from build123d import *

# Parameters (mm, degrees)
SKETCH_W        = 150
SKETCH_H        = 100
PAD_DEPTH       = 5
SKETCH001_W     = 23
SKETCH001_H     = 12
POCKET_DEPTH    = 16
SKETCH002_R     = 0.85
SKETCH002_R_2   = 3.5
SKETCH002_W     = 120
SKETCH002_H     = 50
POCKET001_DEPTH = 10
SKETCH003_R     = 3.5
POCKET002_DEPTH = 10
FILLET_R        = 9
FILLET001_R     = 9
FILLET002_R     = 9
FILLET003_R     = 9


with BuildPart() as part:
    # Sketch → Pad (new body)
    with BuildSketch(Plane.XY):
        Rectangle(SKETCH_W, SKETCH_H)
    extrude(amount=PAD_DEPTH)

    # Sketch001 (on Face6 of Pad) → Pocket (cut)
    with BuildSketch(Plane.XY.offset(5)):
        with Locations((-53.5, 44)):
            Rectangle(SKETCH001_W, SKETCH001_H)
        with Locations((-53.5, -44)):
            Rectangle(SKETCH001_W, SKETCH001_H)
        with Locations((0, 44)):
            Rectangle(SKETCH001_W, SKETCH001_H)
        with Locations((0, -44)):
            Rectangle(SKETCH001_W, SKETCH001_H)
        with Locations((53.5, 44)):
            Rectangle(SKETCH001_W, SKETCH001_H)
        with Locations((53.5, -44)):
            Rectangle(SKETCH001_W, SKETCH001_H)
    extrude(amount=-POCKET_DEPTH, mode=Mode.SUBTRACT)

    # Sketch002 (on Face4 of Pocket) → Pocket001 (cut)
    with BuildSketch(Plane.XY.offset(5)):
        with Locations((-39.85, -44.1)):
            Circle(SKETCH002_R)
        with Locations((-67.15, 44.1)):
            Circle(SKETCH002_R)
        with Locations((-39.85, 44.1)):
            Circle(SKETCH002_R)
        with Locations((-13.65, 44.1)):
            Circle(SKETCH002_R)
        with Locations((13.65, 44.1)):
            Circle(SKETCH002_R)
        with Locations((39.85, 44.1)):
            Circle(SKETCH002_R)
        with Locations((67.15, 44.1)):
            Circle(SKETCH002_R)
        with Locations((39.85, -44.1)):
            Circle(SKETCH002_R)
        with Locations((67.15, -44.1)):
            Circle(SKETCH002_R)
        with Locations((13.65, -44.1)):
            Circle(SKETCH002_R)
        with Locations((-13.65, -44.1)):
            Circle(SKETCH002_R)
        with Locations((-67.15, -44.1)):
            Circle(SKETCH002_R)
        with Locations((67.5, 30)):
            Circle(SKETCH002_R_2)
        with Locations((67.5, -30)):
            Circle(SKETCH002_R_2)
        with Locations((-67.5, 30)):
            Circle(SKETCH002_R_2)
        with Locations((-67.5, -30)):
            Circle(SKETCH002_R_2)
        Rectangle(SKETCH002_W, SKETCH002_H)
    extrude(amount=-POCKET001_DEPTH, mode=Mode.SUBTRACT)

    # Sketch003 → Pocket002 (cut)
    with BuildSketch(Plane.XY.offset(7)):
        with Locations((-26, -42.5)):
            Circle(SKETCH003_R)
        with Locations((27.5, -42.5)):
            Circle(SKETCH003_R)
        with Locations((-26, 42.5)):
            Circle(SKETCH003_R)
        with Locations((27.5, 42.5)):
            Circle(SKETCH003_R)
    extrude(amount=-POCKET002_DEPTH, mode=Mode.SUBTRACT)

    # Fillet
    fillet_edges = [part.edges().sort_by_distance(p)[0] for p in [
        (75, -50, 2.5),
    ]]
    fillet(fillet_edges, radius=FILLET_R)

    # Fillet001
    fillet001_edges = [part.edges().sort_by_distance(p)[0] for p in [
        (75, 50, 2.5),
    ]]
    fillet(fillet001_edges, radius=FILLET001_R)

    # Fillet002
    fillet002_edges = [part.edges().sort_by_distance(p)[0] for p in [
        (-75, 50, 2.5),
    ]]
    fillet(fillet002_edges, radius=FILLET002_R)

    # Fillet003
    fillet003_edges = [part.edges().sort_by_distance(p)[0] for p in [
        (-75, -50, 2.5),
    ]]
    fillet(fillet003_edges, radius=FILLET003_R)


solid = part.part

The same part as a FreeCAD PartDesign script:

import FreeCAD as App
import Part
import Sketcher


def edges_at(feature, points):
    """Names of the edges that pass closest to the given points."""
    edges = feature.Shape.Edges
    near = lambda p: min(range(len(edges)), key=lambda i: edges[i].distToShape(Part.Vertex(*p))[0])
    return sorted({f"Edge{near(p) + 1}" for p in points})


def add_polygon(sketch, points):
    """Adds a closed chain of lines whose ends are joined by coincident constraints."""
    first, n = sketch.GeometryCount, len(points)
    for a, b in zip(points, points[1:] + points[:1]):
        sketch.addGeometry(Part.LineSegment(App.Vector(*a, 0), App.Vector(*b, 0)), False)
    for i in range(n):
        sketch.addConstraint(Sketcher.Constraint("Coincident", first + i, 2, first + (i + 1) % n, 1))

doc = App.newDocument("Part")
body = doc.addObject("PartDesign::Body", "Body")

# Sketch on XY plane
sketch1 = doc.addObject("Sketcher::SketchObject", "Sketch")
body.addObject(sketch1)
sketch1.AttachmentSupport = (doc.XY_Plane, [""])
sketch1.MapMode = "FlatFace"
add_polygon(sketch1, [(-75, 50), (-75, -50), (75, -50), (75, 50)])  # lines 0-3
sketch1.addConstraint([
    Sketcher.Constraint("Vertical", 0),
    Sketcher.Constraint("Horizontal", 1),
    Sketcher.Constraint("Vertical", 2),
    Sketcher.Constraint("Horizontal", 3),
    Sketcher.Constraint("Symmetric", 0, 2, 2, 2, -1, 1),
    Sketcher.Constraint("DistanceX", 1, 1, 1, 2, 150.0),
    Sketcher.Constraint("DistanceY", 0, 2, 0, 1, 100.0),
])
pad1 = doc.addObject("PartDesign::Pad", "Pad")
body.addObject(pad1)
pad1.Profile = sketch1
pad1.Length = 5

# Sketch on XY plane
sketch2 = doc.addObject("Sketcher::SketchObject", "Sketch001")
body.addObject(sketch2)
sketch2.AttachmentSupport = (doc.XY_Plane, [""])
sketch2.MapMode = "FlatFace"
sketch2.AttachmentOffset = App.Placement(App.Vector(0, 0, 5), App.Rotation())
add_polygon(sketch2, [(-65, 50), (-65, 38), (-42, 38), (-42, 50)])  # lines 0-3
add_polygon(sketch2, [(-65, -38), (-65, -50), (-42, -50), (-42, -38)])  # lines 4-7
add_polygon(sketch2, [(-12, 50), (-12, 38), (12, 38), (12, 50)])  # lines 8-11
add_polygon(sketch2, [(-12, -38), (-12, -50), (12, -50), (12, -38)])  # lines 12-15
add_polygon(sketch2, [(42, 50), (42, 38), (65, 38), (65, 50)])  # lines 16-19
add_polygon(sketch2, [(42, -38), (42, -50), (65, -50), (65, -38)])  # lines 20-23
sketch2.addConstraint([
    Sketcher.Constraint("Vertical", 0),
    Sketcher.Constraint("Horizontal", 1),
    Sketcher.Constraint("Vertical", 2),
    Sketcher.Constraint("Horizontal", 3),
    Sketcher.Constraint("Vertical", 4),
    Sketcher.Constraint("Horizontal", 5),
    Sketcher.Constraint("Vertical", 6),
    Sketcher.Constraint("Horizontal", 7),
    Sketcher.Constraint("Vertical", 8),
    Sketcher.Constraint("Horizontal", 9),
    Sketcher.Constraint("Vertical", 10),
    Sketcher.Constraint("Horizontal", 11),
    Sketcher.Constraint("Vertical", 12),
    Sketcher.Constraint("Horizontal", 13),
    Sketcher.Constraint("Vertical", 14),
    Sketcher.Constraint("Horizontal", 15),
    Sketcher.Constraint("Vertical", 16),
    Sketcher.Constraint("Horizontal", 17),
    Sketcher.Constraint("Vertical", 18),
    Sketcher.Constraint("Horizontal", 19),
    Sketcher.Constraint("Vertical", 20),
    Sketcher.Constraint("Horizontal", 21),
    Sketcher.Constraint("Vertical", 22),
    Sketcher.Constraint("Horizontal", 23),
    Sketcher.Constraint("Symmetric", 10, 2, 12, 2, -1, 1),
    Sketcher.Constraint("Symmetric", 8, 2, 14, 2, -1, 1),
    Sketcher.Constraint("Symmetric", 6, 2, 16, 2, -1, 1),
    Sketcher.Constraint("Symmetric", 4, 2, 18, 2, -1, 1),
    Sketcher.Constraint("Symmetric", 2, 2, 20, 2, -1, 1),
    Sketcher.Constraint("Symmetric", 0, 2, 22, 2, -1, 1),
    Sketcher.Constraint("Symmetric", 1, 2, 16, 2, -2),
    Sketcher.Constraint("Symmetric", 3, 2, 18, 2, -2),
    Sketcher.Constraint("Horizontal", 1, 2, 8, 2),
    Sketcher.Constraint("Horizontal", 3, 2, 10, 2),
    Sketcher.Constraint("Vertical", 11, 2, 12, 2),
    Sketcher.Constraint("Equal", 7, 9),
    Sketcher.Constraint("DistanceX", 1, 1, 1, 2, 23.0),
    Sketcher.Constraint("DistanceY", 0, 2, 0, 1, 12.0),
    Sketcher.Constraint("DistanceX", 0, 2, -1, 1, 65.0),
    Sketcher.Constraint("DistanceY", -1, 1, 0, 2, 38.0),
])
pocket1 = doc.addObject("PartDesign::Pocket", "Pocket")
body.addObject(pocket1)
pocket1.Profile = sketch2
pocket1.Length = 16

# Sketch on XY plane
sketch3 = doc.addObject("Sketcher::SketchObject", "Sketch002")
body.addObject(sketch3)
sketch3.AttachmentSupport = (doc.XY_Plane, [""])
sketch3.MapMode = "FlatFace"
sketch3.AttachmentOffset = App.Placement(App.Vector(0, 0, 5), App.Rotation())
sketch3.addGeometry(Part.Circle(App.Vector(-39.9, -44.1, 0), App.Vector(0, 0, 1), 0.8), False)  # 0
sketch3.addGeometry(Part.Circle(App.Vector(-67.2, 44.1, 0), App.Vector(0, 0, 1), 0.8), False)  # 1
sketch3.addGeometry(Part.Circle(App.Vector(-39.9, 44.1, 0), App.Vector(0, 0, 1), 0.8), False)  # 2
sketch3.addGeometry(Part.Circle(App.Vector(-13.7, 44.1, 0), App.Vector(0, 0, 1), 0.8), False)  # 3
sketch3.addGeometry(Part.Circle(App.Vector(13.7, 44.1, 0), App.Vector(0, 0, 1), 0.8), False)  # 4
sketch3.addGeometry(Part.Circle(App.Vector(39.9, 44.1, 0), App.Vector(0, 0, 1), 0.8), False)  # 5
sketch3.addGeometry(Part.Circle(App.Vector(67.2, 44.1, 0), App.Vector(0, 0, 1), 0.8), False)  # 6
sketch3.addGeometry(Part.Circle(App.Vector(39.9, -44.1, 0), App.Vector(0, 0, 1), 0.8), False)  # 7
sketch3.addGeometry(Part.Circle(App.Vector(67.2, -44.1, 0), App.Vector(0, 0, 1), 0.8), False)  # 8
sketch3.addGeometry(Part.Circle(App.Vector(13.7, -44.1, 0), App.Vector(0, 0, 1), 0.8), False)  # 9
sketch3.addGeometry(Part.Circle(App.Vector(-13.7, -44.1, 0), App.Vector(0, 0, 1), 0.8), False)  # 10
sketch3.addGeometry(Part.Circle(App.Vector(-67.2, -44.1, 0), App.Vector(0, 0, 1), 0.8), False)  # 11
sketch3.addGeometry(Part.Circle(App.Vector(67.5, 30, 0), App.Vector(0, 0, 1), 3.5), False)  # 12
sketch3.addGeometry(Part.Circle(App.Vector(67.5, -30, 0), App.Vector(0, 0, 1), 3.5), False)  # 13
sketch3.addGeometry(Part.Circle(App.Vector(-67.5, 30, 0), App.Vector(0, 0, 1), 3.5), False)  # 14
sketch3.addGeometry(Part.Circle(App.Vector(-67.5, -30, 0), App.Vector(0, 0, 1), 3.5), False)  # 15
add_polygon(sketch3, [(-60, 25), (-60, -25), (60, -25), (60, 25)])  # lines 16-19
sketch3.addConstraint([
    Sketcher.Constraint("Vertical", 16),
    Sketcher.Constraint("Horizontal", 17),
    Sketcher.Constraint("Vertical", 18),
    Sketcher.Constraint("Horizontal", 19),
    Sketcher.Constraint("Equal", 0, 1),
    Sketcher.Constraint("Equal", 1, 2),
    Sketcher.Constraint("Equal", 2, 3),
    Sketcher.Constraint("Equal", 3, 4),
    Sketcher.Constraint("Equal", 4, 5),
    Sketcher.Constraint("Equal", 5, 6),
    Sketcher.Constraint("Equal", 6, 7),
    Sketcher.Constraint("Equal", 7, 8),
    Sketcher.Constraint("Equal", 8, 9),
    Sketcher.Constraint("Equal", 9, 10),
    Sketcher.Constraint("Equal", 10, 11),
    Sketcher.Constraint("Equal", 12, 13),
    Sketcher.Constraint("Equal", 13, 14),
    Sketcher.Constraint("Equal", 14, 15),
    Sketcher.Constraint("Symmetric", 0, 3, 5, 3, -1, 1),
    Sketcher.Constraint("Symmetric", 2, 3, 7, 3, -1, 1),
    Sketcher.Constraint("Symmetric", 1, 3, 8, 3, -1, 1),
    Sketcher.Constraint("Symmetric", 3, 3, 9, 3, -1, 1),
    Sketcher.Constraint("Symmetric", 4, 3, 10, 3, -1, 1),
    Sketcher.Constraint("Symmetric", 6, 3, 11, 3, -1, 1),
    Sketcher.Constraint("Symmetric", 13, 3, 14, 3, -1, 1),
    Sketcher.Constraint("Symmetric", 12, 3, 15, 3, -1, 1),
    Sketcher.Constraint("Symmetric", 16, 2, 18, 2, -1, 1),
    Sketcher.Constraint("Symmetric", 3, 3, 4, 3, -2),
    Sketcher.Constraint("Symmetric", 2, 3, 5, 3, -2),
    Sketcher.Constraint("Symmetric", 1, 3, 6, 3, -2),
    Sketcher.Constraint("Symmetric", 12, 3, 14, 3, -2),
    Sketcher.Constraint("Horizontal", 1, 3, 2, 3),
    Sketcher.Constraint("Horizontal", 2, 3, 3, 3),
    Sketcher.Constraint("Diameter", 12, 7.0),
    Sketcher.Constraint("Diameter", 0, 1.7),
    Sketcher.Constraint("DistanceX", 17, 1, 17, 2, 120.0),
    Sketcher.Constraint("DistanceY", 16, 2, 16, 1, 50.0),
    Sketcher.Constraint("DistanceY", -1, 1, 12, 3, 30.0),
    Sketcher.Constraint("DistanceX", 1, 3, 5, 3, 107.0),
    Sketcher.Constraint("DistanceY", 0, 3, -1, 1, 44.1),
    Sketcher.Constraint("DistanceX", -1, 1, 12, 3, 67.5),
    Sketcher.Constraint("DistanceX", 1, 3, 0, 3, 27.3),
    Sketcher.Constraint("DistanceX", 2, 3, 3, 3, 26.2),
])
pocket2 = doc.addObject("PartDesign::Pocket", "Pocket001")
body.addObject(pocket2)
pocket2.Profile = sketch3
pocket2.Length = 10

# Sketch on XY plane
sketch4 = doc.addObject("Sketcher::SketchObject", "Sketch003")
body.addObject(sketch4)
sketch4.AttachmentSupport = (doc.XY_Plane, [""])
sketch4.MapMode = "FlatFace"
sketch4.AttachmentOffset = App.Placement(App.Vector(0, 0, 7), App.Rotation())
sketch4.addGeometry([
    Part.Circle(App.Vector(-26, -42.5, 0), App.Vector(0, 0, 1), 3.5),
    Part.Circle(App.Vector(27.5, -42.5, 0), App.Vector(0, 0, 1), 3.5),
    Part.Circle(App.Vector(-26, 42.5, 0), App.Vector(0, 0, 1), 3.5),
    Part.Circle(App.Vector(27.5, 42.5, 0), App.Vector(0, 0, 1), 3.5),
], False)
sketch4.addConstraint([
    Sketcher.Constraint("Equal", 0, 1),
    Sketcher.Constraint("Equal", 1, 2),
    Sketcher.Constraint("Equal", 2, 3),
    Sketcher.Constraint("Symmetric", 0, 3, 2, 3, -1),
    Sketcher.Constraint("Symmetric", 1, 3, 3, 3, -1),
    Sketcher.Constraint("Horizontal", 0, 3, 1, 3),
    Sketcher.Constraint("Diameter", 0, 7.0),
    Sketcher.Constraint("DistanceX", 0, 3, -1, 1, 26.0),
    Sketcher.Constraint("DistanceY", 0, 3, 2, 3, 85.0),
    Sketcher.Constraint("DistanceX", -1, 1, 1, 3, 27.5),
])
pocket3 = doc.addObject("PartDesign::Pocket", "Pocket002")
body.addObject(pocket3)
pocket3.Profile = sketch4
pocket3.Length = 10
doc.recompute()

fillet = doc.addObject("PartDesign::Fillet", "Fillet")
body.addObject(fillet)
fillet.Base = (pocket3, edges_at(pocket3, [(75, -50, 2.5)]))
fillet.Radius = 9
doc.recompute()

fillet2 = doc.addObject("PartDesign::Fillet", "Fillet001")
body.addObject(fillet2)
fillet2.Base = (fillet, edges_at(fillet, [(75, 50, 2.5)]))
fillet2.Radius = 9
doc.recompute()

fillet3 = doc.addObject("PartDesign::Fillet", "Fillet002")
body.addObject(fillet3)
fillet3.Base = (fillet2, edges_at(fillet2, [(-75, 50, 2.5)]))
fillet3.Radius = 9
doc.recompute()

fillet4 = doc.addObject("PartDesign::Fillet", "Fillet003")
body.addObject(fillet4)
fillet4.Base = (fillet3, edges_at(fillet3, [(-75, -50, 2.5)]))
fillet4.Radius = 9

doc.recompute()
